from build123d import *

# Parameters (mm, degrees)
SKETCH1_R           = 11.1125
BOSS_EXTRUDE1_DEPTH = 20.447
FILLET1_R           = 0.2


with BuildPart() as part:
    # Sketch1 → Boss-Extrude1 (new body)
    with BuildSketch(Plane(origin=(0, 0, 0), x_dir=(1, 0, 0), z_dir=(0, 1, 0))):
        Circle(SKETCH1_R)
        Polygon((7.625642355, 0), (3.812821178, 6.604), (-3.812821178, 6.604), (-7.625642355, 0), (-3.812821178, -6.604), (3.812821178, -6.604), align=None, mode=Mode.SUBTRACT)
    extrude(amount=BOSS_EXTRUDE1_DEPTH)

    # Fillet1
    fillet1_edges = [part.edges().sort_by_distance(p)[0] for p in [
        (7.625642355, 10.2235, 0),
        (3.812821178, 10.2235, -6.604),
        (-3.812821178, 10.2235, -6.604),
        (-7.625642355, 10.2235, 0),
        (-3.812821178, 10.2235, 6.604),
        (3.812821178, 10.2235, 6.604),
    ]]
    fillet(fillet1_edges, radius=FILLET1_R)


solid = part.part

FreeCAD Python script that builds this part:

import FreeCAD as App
import Part
import Sketcher
from FreeCAD import Vector
Q = App.Units.Quantity


def edges_at(feature, points):
    """Names of the edges that pass closest to the given points."""
    edges = feature.Shape.Edges
    near = lambda p: min(range(len(edges)), key=lambda i: edges[i].distToShape(Part.Vertex(*p))[0])
    return sorted({f"Edge{near(p) + 1}" for p in points})


def add_polygon(sketch, points):
    """Adds a closed chain of lines whose ends are joined by coincident constraints."""
    first, n = sketch.GeometryCount, len(points)
    for a, b in zip(points, points[1:] + points[:1]):
        sketch.addGeometry(Part.LineSegment(App.Vector(*a, 0), App.Vector(*b, 0)), False)
    for i in range(n):
        sketch.addConstraint(Sketcher.Constraint("Coincident", first + i, 2, first + (i + 1) % n, 1))

doc = App.newDocument("Part")
body = doc.addObject("PartDesign::Body", "Body")

sketch1 = body.newObject("Sketcher::SketchObject", "Sketch")
sketch1.AttachmentSupport = (doc.getObject("XZ_Plane"), [""])
sketch1.MapMode = "FlatFace"
sketch1.addGeometry(Part.Circle(Vector(0, 0, 0), Vector(0, 0, 1), 11), False)
add_polygon(sketch1, [(4, -7), (8, 0), (4, 7), (-4, 7), (-8, 0), (-4, -7)])
sketch1.addConstraint(Sketcher.Constraint("Horizontal", 3))
sketch1.addConstraint(Sketcher.Constraint("Horizontal", 6))
sketch1.addConstraint(Sketcher.Constraint("Coincident", 0, 3, -1, 1))
sketch1.addConstraint(Sketcher.Constraint("Symmetric", 1, 2, 4, 2, -1, 1))
sketch1.addConstraint(Sketcher.Constraint("Symmetric", 2, 2, 5, 2, -1, 1))
sketch1.addConstraint(Sketcher.Constraint("PointOnObject", 1, 2, -1))
sketch1.addConstraint(Sketcher.Constraint("Parallel", 1, 4))
sketch1.addConstraint(Sketcher.Constraint("Vertical", 3, 2, 5, 2))
sketch1.addConstraint(Sketcher.Constraint("Diameter", 0, Q("0.875 in")))
sketch1.addConstraint(Sketcher.Constraint("Angle", 1, Q("60 deg")))
sketch1.addConstraint(Sketcher.Constraint("DistanceY", -1, 1, 2, 2, Q("0.26 in")))
sketch1.addConstraint(Sketcher.Constraint("DistanceX", 3, 2, 3, 1, Q("7.625642 mm")))
pad1 = body.newObject("PartDesign::Pad", "Pad")
pad1.Profile = sketch1
pad1.Length = Q("0.805 in")
pad1.Reversed = True
doc.recompute()

fillet = body.newObject("PartDesign::Fillet", "Fillet")
fillet.Base = (pad1, edges_at(pad1, [
    (7.626, 10.223, 0),
    (3.813, 10.223, -6.604),
    (-3.813, 10.223, -6.604),
    (-7.626, 10.223, 0),
    (-3.813, 10.223, 6.604),
    (3.813, 10.223, 6.604),
]))
fillet.Radius = 0.2

doc.recompute()
